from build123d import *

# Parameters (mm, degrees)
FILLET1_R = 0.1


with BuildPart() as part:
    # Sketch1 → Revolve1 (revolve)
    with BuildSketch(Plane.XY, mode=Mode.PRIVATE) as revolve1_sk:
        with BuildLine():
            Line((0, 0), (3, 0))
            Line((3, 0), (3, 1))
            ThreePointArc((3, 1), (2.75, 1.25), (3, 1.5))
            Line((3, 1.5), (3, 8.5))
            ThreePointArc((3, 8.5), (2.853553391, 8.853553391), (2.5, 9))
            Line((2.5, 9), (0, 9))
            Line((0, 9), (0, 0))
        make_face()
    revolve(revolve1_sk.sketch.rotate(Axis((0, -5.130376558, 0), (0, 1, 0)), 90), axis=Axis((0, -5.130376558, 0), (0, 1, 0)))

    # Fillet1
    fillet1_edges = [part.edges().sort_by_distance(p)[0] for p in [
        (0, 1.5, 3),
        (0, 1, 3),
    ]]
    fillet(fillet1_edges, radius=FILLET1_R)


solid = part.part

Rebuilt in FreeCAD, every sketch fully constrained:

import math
import FreeCAD as App
import Part
import Sketcher

V = App.Vector


def edges_at(feature, points):
    """Names of the edges that pass closest to the given points."""
    edges = feature.Shape.Edges
    near = lambda p: min(range(len(edges)), key=lambda i: edges[i].distToShape(Part.Vertex(*p))[0])
    return sorted({f"Edge{near(p) + 1}" for p in points})

doc = App.newDocument("Part")
params = doc.addObject("Spreadsheet::Sheet", "Params")
for row, (alias, value) in enumerate([
    ("sketch1_radius", "0.5 mm"),
    ("sketch1_width", "3 mm"),
    ("sketch1_height", "1 mm"),
    ("sketch1_height2", "7 mm"),
    ("sketch1_height3", "9 mm"),
    ("revolution_angle", "360 deg"),
    ("fillet_radius", "0.1 mm"),
], start=1):
    params.set(f"A{row}", alias)
    params.set(f"B{row}", "=" + value)
    params.setAlias(f"B{row}", alias)

body = doc.addObject("PartDesign::Body", "Body")

# Sketch on XY plane
sketch1 = body.newObject("Sketcher::SketchObject", "Sketch")
sketch1.AttachmentSupport = (doc.getObject("XY_Plane"), [""])
sketch1.MapMode = "FlatFace"
sketch1.addGeometry([
    Part.LineSegment(V(0, 0, 0), V(3, 0, 0)),  # 0
    Part.LineSegment(V(3, 0, 0), V(3, 1, 0)),  # 1
    Part.ArcOfCircle(Part.Circle(V(3, 1.25, 0), V(0, 0, 1), 0.25), math.radians(90), math.radians(270)),  # 2
    Part.LineSegment(V(3, 1.5, 0), V(3, 8.5, 0)),  # 3
    Part.ArcOfCircle(Part.Circle(V(2.5, 8.5, 0), V(0, 0, 1), 0.5), math.radians(0), math.radians(90)),  # 4
    Part.LineSegment(V(2.5, 9, 0), V(0, 9, 0)),  # 5
    Part.LineSegment(V(0, 9, 0), V(0, 0, 0)),  # 6
], False)
sketch1.addConstraint([
    Sketcher.Constraint("Coincident", 0, 2, 1, 1),
    Sketcher.Constraint("Coincident", 1, 2, 2, 2),
    Sketcher.Constraint("Coincident", 2, 1, 3, 1),
    Sketcher.Constraint("Tangent", 3, 2, 4, 1),
    Sketcher.Constraint("Tangent", 4, 2, 5, 1),
    Sketcher.Constraint("Coincident", 5, 2, 6, 1),
    Sketcher.Constraint("Coincident", 6, 2, 0, 1),
    Sketcher.Constraint("Horizontal", 0),
    Sketcher.Constraint("Vertical", 1),
    Sketcher.Constraint("Vertical", 3),
    Sketcher.Constraint("Horizontal", 5),
    Sketcher.Constraint("Vertical", 6),
    Sketcher.Constraint("Coincident", 6, 2, -1, 1),
    Sketcher.Constraint("Vertical", 2, 3, 0, 2),
    Sketcher.Constraint("Vertical", 1, 2, 2, 1),
    Sketcher.Constraint("Radius", 4, 0.5),
    Sketcher.Constraint("DistanceX", 0, 1, 0, 2, 3.0),
    Sketcher.Constraint("DistanceY", 1, 1, 1, 2, 1.0),
    Sketcher.Constraint("DistanceY", 3, 1, 3, 2, 7.0),
    Sketcher.Constraint("DistanceY", 6, 2, 6, 1, 9.0),
])
sketch1.setExpression("Constraints[15]", "Params.sketch1_radius")
sketch1.setExpression("Constraints[16]", "Params.sketch1_width")
sketch1.setExpression("Constraints[17]", "Params.sketch1_height")
sketch1.setExpression("Constraints[18]", "Params.sketch1_height2")
sketch1.setExpression("Constraints[19]", "Params.sketch1_height3")
revolution = body.newObject("PartDesign::Revolution", "Revolution")
revolution.Profile = sketch1
revolution.ReferenceAxis = (sketch1, ["V_Axis"])
revolution.setExpression("Angle", "Params.revolution_angle")
doc.recompute()

fillet = body.newObject("PartDesign::Fillet", "Fillet")
fillet.Base = (revolution, edges_at(revolution, [(0, 1.5, 3), (0, 1, 3)]))
fillet.setExpression("Radius", "Params.fillet_radius")

doc.recompute()
